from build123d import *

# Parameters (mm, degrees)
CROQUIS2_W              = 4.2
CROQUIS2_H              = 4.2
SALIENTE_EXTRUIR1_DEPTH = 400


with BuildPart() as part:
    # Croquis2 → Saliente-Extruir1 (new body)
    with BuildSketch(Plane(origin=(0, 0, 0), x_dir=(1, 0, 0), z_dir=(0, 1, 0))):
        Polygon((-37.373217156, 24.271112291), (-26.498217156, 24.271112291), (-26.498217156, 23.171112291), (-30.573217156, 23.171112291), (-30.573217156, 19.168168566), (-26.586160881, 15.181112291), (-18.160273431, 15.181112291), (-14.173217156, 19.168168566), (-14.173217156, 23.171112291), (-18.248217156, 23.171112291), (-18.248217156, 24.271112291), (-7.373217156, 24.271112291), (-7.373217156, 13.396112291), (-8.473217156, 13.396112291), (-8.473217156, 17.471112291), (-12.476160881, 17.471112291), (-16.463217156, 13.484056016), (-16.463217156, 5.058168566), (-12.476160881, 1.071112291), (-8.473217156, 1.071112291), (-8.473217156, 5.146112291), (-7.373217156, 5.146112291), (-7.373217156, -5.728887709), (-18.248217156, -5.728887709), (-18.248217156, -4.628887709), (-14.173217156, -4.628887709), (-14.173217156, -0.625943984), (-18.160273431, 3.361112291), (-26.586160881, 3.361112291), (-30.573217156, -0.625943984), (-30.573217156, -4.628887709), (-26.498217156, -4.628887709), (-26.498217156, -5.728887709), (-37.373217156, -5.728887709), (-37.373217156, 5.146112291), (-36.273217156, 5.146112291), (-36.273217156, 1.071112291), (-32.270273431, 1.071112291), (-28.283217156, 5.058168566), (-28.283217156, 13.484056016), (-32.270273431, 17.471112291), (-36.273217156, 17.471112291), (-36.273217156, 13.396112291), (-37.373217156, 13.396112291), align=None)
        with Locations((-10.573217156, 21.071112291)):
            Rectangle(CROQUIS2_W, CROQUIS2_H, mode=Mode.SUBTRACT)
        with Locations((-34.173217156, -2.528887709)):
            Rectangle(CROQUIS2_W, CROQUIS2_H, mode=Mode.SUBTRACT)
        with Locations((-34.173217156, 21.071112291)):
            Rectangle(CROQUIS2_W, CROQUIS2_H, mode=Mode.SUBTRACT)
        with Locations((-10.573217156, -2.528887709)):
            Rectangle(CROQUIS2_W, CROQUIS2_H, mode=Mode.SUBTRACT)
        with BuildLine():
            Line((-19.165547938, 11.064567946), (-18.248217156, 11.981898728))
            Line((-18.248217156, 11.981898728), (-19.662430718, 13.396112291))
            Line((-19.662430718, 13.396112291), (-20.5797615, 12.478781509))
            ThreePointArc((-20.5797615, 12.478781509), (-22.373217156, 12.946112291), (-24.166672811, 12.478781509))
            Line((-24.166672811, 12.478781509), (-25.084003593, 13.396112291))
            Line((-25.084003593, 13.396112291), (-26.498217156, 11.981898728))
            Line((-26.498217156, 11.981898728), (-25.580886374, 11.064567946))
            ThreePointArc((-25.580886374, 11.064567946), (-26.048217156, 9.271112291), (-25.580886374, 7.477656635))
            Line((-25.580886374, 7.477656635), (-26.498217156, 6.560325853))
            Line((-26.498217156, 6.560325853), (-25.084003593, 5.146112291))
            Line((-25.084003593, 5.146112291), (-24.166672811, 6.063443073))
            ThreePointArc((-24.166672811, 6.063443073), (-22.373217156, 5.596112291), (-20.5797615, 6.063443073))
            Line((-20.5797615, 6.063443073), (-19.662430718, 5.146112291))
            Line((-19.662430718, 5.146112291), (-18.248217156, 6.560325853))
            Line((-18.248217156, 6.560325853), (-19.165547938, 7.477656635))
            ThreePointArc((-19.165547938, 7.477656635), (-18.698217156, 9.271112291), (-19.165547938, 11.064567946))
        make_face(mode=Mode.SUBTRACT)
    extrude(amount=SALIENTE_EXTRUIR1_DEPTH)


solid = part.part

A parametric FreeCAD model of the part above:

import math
import FreeCAD as App
import Part
import Sketcher
Q = App.Units.Quantity

doc = App.newDocument("Part")
body = doc.addObject("PartDesign::Body", "Body")

# Sketch on XZ plane
sketch1 = body.newObject("Sketcher::SketchObject", "Sketch")
sketch1.AttachmentSupport = (doc.getObject("XZ_Plane"), [""])
sketch1.MapMode = "FlatFace"
sketch1.addGeometry([
    Part.LineSegment(App.Vector(-26.5, -24.3, 0), App.Vector(-37.4, -24.3, 0)),  # 0
    Part.LineSegment(App.Vector(-37.4, -24.3, 0), App.Vector(-37.4, -13.4, 0)),  # 1
    Part.LineSegment(App.Vector(-37.4, -13.4, 0), App.Vector(-36.3, -13.4, 0)),  # 2
    Part.LineSegment(App.Vector(-36.3, -13.4, 0), App.Vector(-36.3, -17.5, 0)),  # 3
    Part.LineSegment(App.Vector(-36.3, -17.5, 0), App.Vector(-32.3, -17.5, 0)),  # 4
    Part.LineSegment(App.Vector(-32.3, -17.5, 0), App.Vector(-28.3, -13.5, 0)),  # 5
    Part.LineSegment(App.Vector(-28.3, -13.5, 0), App.Vector(-28.3, -5.1, 0)),  # 6
    Part.LineSegment(App.Vector(-28.3, -5.1, 0), App.Vector(-32.3, -1.1, 0)),  # 7
    Part.LineSegment(App.Vector(-32.3, -1.1, 0), App.Vector(-36.3, -1.1, 0)),  # 8
    Part.LineSegment(App.Vector(-36.3, -1.1, 0), App.Vector(-36.3, -5.1, 0)),  # 9
    Part.LineSegment(App.Vector(-36.3, -5.1, 0), App.Vector(-37.4, -5.1, 0)),  # 10
    Part.LineSegment(App.Vector(-37.4, -5.1, 0), App.Vector(-37.4, 5.7, 0)),  # 11
    Part.LineSegment(App.Vector(-37.4, 5.7, 0), App.Vector(-26.5, 5.7, 0)),  # 12
    Part.LineSegment(App.Vector(-26.5, 5.7, 0), App.Vector(-26.5, 4.6, 0)),  # 13
    Part.LineSegment(App.Vector(-26.5, 4.6, 0), App.Vector(-30.6, 4.6, 0)),  # 14
    Part.LineSegment(App.Vector(-30.6, 4.6, 0), App.Vector(-30.6, 0.6, 0)),  # 15
    Part.LineSegment(App.Vector(-30.6, 0.6, 0), App.Vector(-26.6, -3.4, 0)),  # 16
    Part.LineSegment(App.Vector(-26.6, -3.4, 0), App.Vector(-18.2, -3.4, 0)),  # 17
    Part.LineSegment(App.Vector(-18.2, -3.4, 0), App.Vector(-14.2, 0.6, 0)),  # 18
    Part.LineSegment(App.Vector(-14.2, 0.6, 0), App.Vector(-14.2, 4.6, 0)),  # 19
    Part.LineSegment(App.Vector(-14.2, 4.6, 0), App.Vector(-18.2, 4.6, 0)),  # 20
    Part.LineSegment(App.Vector(-18.2, 4.6, 0), App.Vector(-18.2, 5.7, 0)),  # 21
    Part.LineSegment(App.Vector(-18.2, 5.7, 0), App.Vector(-7.4, 5.7, 0)),  # 22
    Part.LineSegment(App.Vector(-7.4, 5.7, 0), App.Vector(-7.4, -5.1, 0)),  # 23
    Part.LineSegment(App.Vector(-7.4, -5.1, 0), App.Vector(-8.5, -5.1, 0)),  # 24
    Part.LineSegment(App.Vector(-8.5, -5.1, 0), App.Vector(-8.5, -1.1, 0)),  # 25
    Part.LineSegment(App.Vector(-8.5, -1.1, 0), App.Vector(-12.5, -1.1, 0)),  # 26
    Part.LineSegment(App.Vector(-12.5, -1.1, 0), App.Vector(-16.5, -5.1, 0)),  # 27
    Part.LineSegment(App.Vector(-16.5, -5.1, 0), App.Vector(-16.5, -13.5, 0)),  # 28
    Part.LineSegment(App.Vector(-16.5, -13.5, 0), App.Vector(-12.5, -17.5, 0)),  # 29
    Part.LineSegment(App.Vector(-12.5, -17.5, 0), App.Vector(-8.5, -17.5, 0)),  # 30
    Part.LineSegment(App.Vector(-8.5, -17.5, 0), App.Vector(-8.5, -13.4, 0)),  # 31
    Part.LineSegment(App.Vector(-8.5, -13.4, 0), App.Vector(-7.4, -13.4, 0)),  # 32
    Part.LineSegment(App.Vector(-7.4, -13.4, 0), App.Vector(-7.4, -24.3, 0)),  # 33
    Part.LineSegment(App.Vector(-7.4, -24.3, 0), App.Vector(-18.2, -24.3, 0)),  # 34
    Part.LineSegment(App.Vector(-18.2, -24.3, 0), App.Vector(-18.2, -23.2, 0)),  # 35
    Part.LineSegment(App.Vector(-18.2, -23.2, 0), App.Vector(-14.2, -23.2, 0)),  # 36
    Part.LineSegment(App.Vector(-14.2, -23.2, 0), App.Vector(-14.2, -19.2, 0)),  # 37
    Part.LineSegment(App.Vector(-14.2, -19.2, 0), App.Vector(-18.2, -15.2, 0)),  # 38
    Part.LineSegment(App.Vector(-18.2, -15.2, 0), App.Vector(-26.6, -15.2, 0)),  # 39
    Part.LineSegment(App.Vector(-26.6, -15.2, 0), App.Vector(-30.6, -19.2, 0)),  # 40
    Part.LineSegment(App.Vector(-30.6, -19.2, 0), App.Vector(-30.6, -23.2, 0)),  # 41
    Part.LineSegment(App.Vector(-30.6, -23.2, 0), App.Vector(-26.5, -23.2, 0)),  # 42
    Part.LineSegment(App.Vector(-26.5, -23.2, 0), App.Vector(-26.5, -24.3, 0)),  # 43
    Part.LineSegment(App.Vector(-12.7, 4.6, 0), App.Vector(-12.7, 0.4, 0)),  # 44
    Part.LineSegment(App.Vector(-12.7, 0.4, 0), App.Vector(-8.5, 0.4, 0)),  # 45
    Part.LineSegment(App.Vector(-8.5, 0.4, 0), App.Vector(-8.5, 4.6, 0)),  # 46
    Part.LineSegment(App.Vector(-8.5, 4.6, 0), App.Vector(-12.7, 4.6, 0)),  # 47
    Part.LineSegment(App.Vector(-36.3, 4.6, 0), App.Vector(-36.3, 0.4, 0)),  # 48
    Part.LineSegment(App.Vector(-36.3, 0.4, 0), App.Vector(-32.1, 0.4, 0)),  # 49
    Part.LineSegment(App.Vector(-32.1, 0.4, 0), App.Vector(-32.1, 4.6, 0)),  # 50
    Part.LineSegment(App.Vector(-32.1, 4.6, 0), App.Vector(-36.3, 4.6, 0)),  # 51
    Part.ArcOfCircle(Part.Circle(App.Vector(-22.4, -9.3, 0), App.Vector(0, 0, 1), 3.7), math.radians(-29), math.radians(29)),  # 52
    Part.LineSegment(App.Vector(-19.2, -7.5, 0), App.Vector(-18.2, -6.6, 0)),  # 53
    Part.LineSegment(App.Vector(-18.2, -6.6, 0), App.Vector(-19.7, -5.1, 0)),  # 54
    Part.LineSegment(App.Vector(-19.7, -5.1, 0), App.Vector(-20.6, -6.1, 0)),  # 55
    Part.ArcOfCircle(Part.Circle(App.Vector(-22.4, -9.3, 0), App.Vector(0, 0, 1), 3.7), math.radians(61), math.radians(119)),  # 56
    Part.LineSegment(App.Vector(-24.2, -6.1, 0), App.Vector(-25.1, -5.1, 0)),  # 57
    Part.LineSegment(App.Vector(-25.1, -5.1, 0), App.Vector(-26.5, -6.6, 0)),  # 58
    Part.LineSegment(App.Vector(-26.5, -6.6, 0), App.Vector(-25.6, -7.5, 0)),  # 59
    Part.ArcOfCircle(Part.Circle(App.Vector(-22.4, -9.3, 0), App.Vector(0, 0, 1), 3.7), math.radians(151), math.radians(209)),  # 60
    Part.LineSegment(App.Vector(-25.6, -11.1, 0), App.Vector(-26.5, -12, 0)),  # 61
    Part.LineSegment(App.Vector(-26.5, -12, 0), App.Vector(-25.1, -13.4, 0)),  # 62
    Part.LineSegment(App.Vector(-25.1, -13.4, 0), App.Vector(-24.2, -12.5, 0)),  # 63
    Part.ArcOfCircle(Part.Circle(App.Vector(-22.4, -9.3, 0), App.Vector(0, 0, 1), 3.7), math.radians(-119), math.radians(-61)),  # 64
    Part.LineSegment(App.Vector(-20.6, -12.5, 0), App.Vector(-19.7, -13.4, 0)),  # 65
    Part.LineSegment(App.Vector(-19.7, -13.4, 0), App.Vector(-18.2, -12, 0)),  # 66
    Part.LineSegment(App.Vector(-18.2, -12, 0), App.Vector(-19.2, -11.1, 0)),  # 67
    Part.LineSegment(App.Vector(-12.7, -19, 0), App.Vector(-12.7, -23.2, 0)),  # 68
    Part.LineSegment(App.Vector(-12.7, -23.2, 0), App.Vector(-8.5, -23.2, 0)),  # 69
    Part.LineSegment(App.Vector(-8.5, -23.2, 0), App.Vector(-8.5, -19, 0)),  # 70
    Part.LineSegment(App.Vector(-8.5, -19, 0), App.Vector(-12.7, -19, 0)),  # 71
    Part.LineSegment(App.Vector(-36.3, -19, 0), App.Vector(-36.3, -23.2, 0)),  # 72
    Part.LineSegment(App.Vector(-36.3, -23.2, 0), App.Vector(-32.1, -23.2, 0)),  # 73
    Part.LineSegment(App.Vector(-32.1, -23.2, 0), App.Vector(-32.1, -19, 0)),  # 74
    Part.LineSegment(App.Vector(-32.1, -19, 0), App.Vector(-36.3, -19, 0)),  # 75
], False)
sketch1.addConstraint([
    Sketcher.Constraint("Coincident", 0, 2, 1, 1),
    Sketcher.Constraint("Coincident", 1, 2, 2, 1),
    Sketcher.Constraint("Coincident", 2, 2, 3, 1),
    Sketcher.Constraint("Coincident", 3, 2, 4, 1),
    Sketcher.Constraint("Coincident", 4, 2, 5, 1),
    Sketcher.Constraint("Coincident", 5, 2, 6, 1),
    Sketcher.Constraint("Coincident", 6, 2, 7, 1),
    Sketcher.Constraint("Coincident", 7, 2, 8, 1),
    Sketcher.Constraint("Coincident", 8, 2, 9, 1),
    Sketcher.Constraint("Coincident", 9, 2, 10, 1),
    Sketcher.Constraint("Coincident", 10, 2, 11, 1),
    Sketcher.Constraint("Coincident", 11, 2, 12, 1),
    Sketcher.Constraint("Coincident", 12, 2, 13, 1),
    Sketcher.Constraint("Coincident", 13, 2, 14, 1),
    Sketcher.Constraint("Coincident", 14, 2, 15, 1),
    Sketcher.Constraint("Coincident", 15, 2, 16, 1),
    Sketcher.Constraint("Coincident", 16, 2, 17, 1),
    Sketcher.Constraint("Coincident", 17, 2, 18, 1),
    Sketcher.Constraint("Coincident", 18, 2, 19, 1),
    Sketcher.Constraint("Coincident", 19, 2, 20, 1),
    Sketcher.Constraint("Coincident", 20, 2, 21, 1),
    Sketcher.Constraint("Coincident", 21, 2, 22, 1),
    Sketcher.Constraint("Coincident", 22, 2, 23, 1),
    Sketcher.Constraint("Coincident", 23, 2, 24, 1),
    Sketcher.Constraint("Coincident", 24, 2, 25, 1),
    Sketcher.Constraint("Coincident", 25, 2, 26, 1),
    Sketcher.Constraint("Coincident", 26, 2, 27, 1),
    Sketcher.Constraint("Coincident", 27, 2, 28, 1),
    Sketcher.Constraint("Coincident", 28, 2, 29, 1),
    Sketcher.Constraint("Coincident", 29, 2, 30, 1),
    Sketcher.Constraint("Coincident", 30, 2, 31, 1),
    Sketcher.Constraint("Coincident", 31, 2, 32, 1),
    Sketcher.Constraint("Coincident", 32, 2, 33, 1),
    Sketcher.Constraint("Coincident", 33, 2, 34, 1),
    Sketcher.Constraint("Coincident", 34, 2, 35, 1),
    Sketcher.Constraint("Coincident", 35, 2, 36, 1),
    Sketcher.Constraint("Coincident", 36, 2, 37, 1),
    Sketcher.Constraint("Coincident", 37, 2, 38, 1),
    Sketcher.Constraint("Coincident", 38, 2, 39, 1),
    Sketcher.Constraint("Coincident", 39, 2, 40, 1),
    Sketcher.Constraint("Coincident", 40, 2, 41, 1),
    Sketcher.Constraint("Coincident", 41, 2, 42, 1),
    Sketcher.Constraint("Coincident", 42, 2, 43, 1),
    Sketcher.Constraint("Coincident", 43, 2, 0, 1),
    Sketcher.Constraint("Coincident", 44, 2, 45, 1),
    Sketcher.Constraint("Coincident", 45, 2, 46, 1),
    Sketcher.Constraint("Coincident", 46, 2, 47, 1),
    Sketcher.Constraint("Coincident", 47, 2, 44, 1),
    Sketcher.Constraint("Coincident", 48, 2, 49, 1),
    Sketcher.Constraint("Coincident", 49, 2, 50, 1),
    Sketcher.Constraint("Coincident", 50, 2, 51, 1),
    Sketcher.Constraint("Coincident", 51, 2, 48, 1),
    Sketcher.Constraint("Coincident", 52, 2, 53, 1),
    Sketcher.Constraint("Coincident", 53, 2, 54, 1),
    Sketcher.Constraint("Coincident", 54, 2, 55, 1),
    Sketcher.Constraint("Coincident", 55, 2, 56, 1),
    Sketcher.Constraint("Coincident", 56, 2, 57, 1),
    Sketcher.Constraint("Coincident", 57, 2, 58, 1),
    Sketcher.Constraint("Coincident", 58, 2, 59, 1),
    Sketcher.Constraint("Coincident", 59, 2, 60, 1),
    Sketcher.Constraint("Coincident", 60, 2, 61, 1),
    Sketcher.Constraint("Coincident", 61, 2, 62, 1),
    Sketcher.Constraint("Coincident", 62, 2, 63, 1),
    Sketcher.Constraint("Coincident", 63, 2, 64, 1),
    Sketcher.Constraint("Coincident", 64, 2, 65, 1),
    Sketcher.Constraint("Coincident", 65, 2, 66, 1),
    Sketcher.Constraint("Coincident", 66, 2, 67, 1),
    Sketcher.Constraint("Coincident", 67, 2, 52, 1),
    Sketcher.Constraint("Coincident", 68, 2, 69, 1),
    Sketcher.Constraint("Coincident", 69, 2, 70, 1),
    Sketcher.Constraint("Coincident", 70, 2, 71, 1),
    Sketcher.Constraint("Coincident", 71, 2, 68, 1),
    Sketcher.Constraint("Coincident", 72, 2, 73, 1),
    Sketcher.Constraint("Coincident", 73, 2, 74, 1),
    Sketcher.Constraint("Coincident", 74, 2, 75, 1),
    Sketcher.Constraint("Coincident", 75, 2, 72, 1),
    Sketcher.Constraint("Horizontal", 0),
    Sketcher.Constraint("Vertical", 1),
    Sketcher.Constraint("Horizontal", 2),
    Sketcher.Constraint("Vertical", 3),
    Sketcher.Constraint("Horizontal", 4),
    Sketcher.Constraint("Vertical", 6),
    Sketcher.Constraint("Horizontal", 8),
    Sketcher.Constraint("Vertical", 9),
    Sketcher.Constraint("Horizontal", 10),
    Sketcher.Constraint("Vertical", 11),
    Sketcher.Constraint("Horizontal", 12),
    Sketcher.Constraint("Vertical", 13),
    Sketcher.Constraint("Horizontal", 14),
    Sketcher.Constraint("Vertical", 15),
    Sketcher.Constraint("Horizontal", 17),
    Sketcher.Constraint("Vertical", 19),
    Sketcher.Constraint("Horizontal", 20),
    Sketcher.Constraint("Vertical", 21),
    Sketcher.Constraint("Horizontal", 22),
    Sketcher.Constraint("Vertical", 23),
    Sketcher.Constraint("Horizontal", 24),
    Sketcher.Constraint("Vertical", 25),
    Sketcher.Constraint("Horizontal", 26),
    Sketcher.Constraint("Vertical", 28),
    Sketcher.Constraint("Horizontal", 30),
    Sketcher.Constraint("Vertical", 31),
    Sketcher.Constraint("Horizontal", 32),
    Sketcher.Constraint("Vertical", 33),
    Sketcher.Constraint("Horizontal", 34),
    Sketcher.Constraint("Vertical", 35),
    Sketcher.Constraint("Horizontal", 36),
    Sketcher.Constraint("Vertical", 37),
    Sketcher.Constraint("Horizontal", 39),
    Sketcher.Constraint("Vertical", 41),
    Sketcher.Constraint("Horizontal", 42),
    Sketcher.Constraint("Vertical", 43),
    Sketcher.Constraint("Vertical", 44),
    Sketcher.Constraint("Horizontal", 45),
    Sketcher.Constraint("Vertical", 46),
    Sketcher.Constraint("Horizontal", 47),
    Sketcher.Constraint("Vertical", 48),
    Sketcher.Constraint("Horizontal", 49),
    Sketcher.Constraint("Vertical", 50),
    Sketcher.Constraint("Horizontal", 51),
    Sketcher.Constraint("Vertical", 68),
    Sketcher.Constraint("Horizontal", 69),
    Sketcher.Constraint("Vertical", 70),
    Sketcher.Constraint("Horizontal", 71),
    Sketcher.Constraint("Vertical", 72),
    Sketcher.Constraint("Horizontal", 73),
    Sketcher.Constraint("Vertical", 74),
    Sketcher.Constraint("Horizontal", 75),
    Sketcher.Constraint("Coincident", 56, 3, 52, 3),
    Sketcher.Constraint("Coincident", 60, 3, 52, 3),
    Sketcher.Constraint("Coincident", 64, 3, 52, 3),
    Sketcher.Constraint("Equal", 52, 56),
    Sketcher.Constraint("Equal", 56, 60),
    Sketcher.Constraint("Equal", 60, 64),
    Sketcher.Constraint("Perpendicular", 5, 7),
    Sketcher.Constraint("Parallel", 7, 16),
    Sketcher.Constraint("Perpendicular", 16, 18),
    Sketcher.Constraint("Parallel", 18, 27),
    Sketcher.Constraint("Perpendicular", 27, 29),
    Sketcher.Constraint("Parallel", 29, 38),
    Sketcher.Constraint("Perpendicular", 38, 40),
    Sketcher.Constraint("Parallel", 40, 53),
    Sketcher.Constraint("Perpendicular", 53, 54),
    Sketcher.Constraint("Perpendicular", 54, 55),
    Sketcher.Constraint("Perpendicular", 55, 57),
    Sketcher.Constraint("Perpendicular", 57, 58),
    Sketcher.Constraint("Perpendicular", 58, 59),
    Sketcher.Constraint("Perpendicular", 59, 61),
    Sketcher.Constraint("Perpendicular", 61, 62),
    Sketcher.Constraint("Perpendicular", 62, 63),
    Sketcher.Constraint("Perpendicular", 63, 65),
    Sketcher.Constraint("Perpendicular", 65, 66),
    Sketcher.Constraint("Perpendicular", 66, 67),
    Sketcher.Constraint("Horizontal", 15, 2, 18, 2),
    Sketcher.Constraint("Horizontal", 14, 2, 19, 2),
    Sketcher.Constraint("Horizontal", 12, 2, 21, 2),
    Sketcher.Constraint("Horizontal", 10, 2, 23, 2),
    Sketcher.Constraint("Horizontal", 8, 2, 25, 2),
    Sketcher.Constraint("Horizontal", 6, 2, 27, 2),
    Sketcher.Constraint("Horizontal", 5, 2, 28, 2),
    Sketcher.Constraint("Horizontal", 4, 2, 29, 2),
    Sketcher.Constraint("Horizontal", 2, 2, 31, 2),
    Sketcher.Constraint("Horizontal", 0, 2, 33, 2),
    Sketcher.Constraint("Horizontal", 37, 2, 40, 2),
    Sketcher.Constraint("Horizontal", 36, 2, 41, 2),
    Sketcher.Constraint("Horizontal", 20, 2, 46, 2),
    Sketcher.Constraint("Horizontal", 45, 2, 48, 2),
    Sketcher.Constraint("Horizontal", 47, 2, 50, 2),
    Sketcher.Constraint("Horizontal", 24, 2, 54, 2),
    Sketcher.Constraint("Horizontal", 55, 2, 56, 2),
    Sketcher.Constraint("Horizontal", 54, 2, 57, 2),
    Sketcher.Constraint("Horizontal", 53, 2, 58, 2),
    Sketcher.Constraint("Horizontal", 52, 2, 59, 2),
    Sketcher.Constraint("Horizontal", 32, 2, 62, 2),
    Sketcher.Constraint("Horizontal", 63, 2, 64, 2),
    Sketcher.Constraint("Horizontal", 62, 2, 65, 2),
    Sketcher.Constraint("Horizontal", 61, 2, 66, 2),
    Sketcher.Constraint("Horizontal", 42, 2, 68, 2),
    Sketcher.Constraint("Horizontal", 69, 2, 72, 2),
    Sketcher.Constraint("Horizontal", 71, 2, 74, 2),
    Sketcher.Constraint("Vertical", 4, 2, 7, 2),
    Sketcher.Constraint("Vertical", 3, 2, 8, 2),
    Sketcher.Constraint("Vertical", 1, 2, 10, 2),
    Sketcher.Constraint("Vertical", 25, 2, 30, 2),
    Sketcher.Constraint("Vertical", 23, 2, 32, 2),
    Sketcher.Constraint("Vertical", 21, 2, 34, 2),
    Sketcher.Constraint("Vertical", 19, 2, 36, 2),
    Sketcher.Constraint("Vertical", 17, 2, 38, 2),
    Sketcher.Constraint("Vertical", 16, 2, 39, 2),
    Sketcher.Constraint("Vertical", 13, 2, 42, 2),
    Sketcher.Constraint("Vertical", 31, 2, 45, 2),
    Sketcher.Constraint("Vertical", 9, 2, 48, 2),
    Sketcher.Constraint("Vertical", 35, 2, 53, 2),
    Sketcher.Constraint("Vertical", 43, 2, 58, 2),
    Sketcher.Constraint("Vertical", 59, 2, 60, 2),
    Sketcher.Constraint("Vertical", 58, 2, 61, 2),
    Sketcher.Constraint("Vertical", 57, 2, 62, 2),
    Sketcher.Constraint("Vertical", 47, 2, 68, 2),
    Sketcher.Constraint("Vertical", 46, 2, 69, 2),
    Sketcher.Constraint("Vertical", 51, 2, 72, 2),
    Sketcher.Constraint("Vertical", 50, 2, 73, 2),
    Sketcher.Constraint("Equal", 14, 20),
    Sketcher.Constraint("Equal", 12, 22),
    Sketcher.Constraint("Equal", 10, 24),
    Sketcher.Constraint("Equal", 8, 26),
    Sketcher.Constraint("Equal", 47, 49),
    Sketcher.Constraint("Equal", 34, 1),
    Sketcher.Constraint("Equal", 42, 3),
    Sketcher.Constraint("Equal", 39, 6),
    Sketcher.Constraint("Equal", 3, 9),
    Sketcher.Constraint("Equal", 1, 11),
    Sketcher.Constraint("Equal", 32, 13),
    Sketcher.Constraint("Equal", 30, 15),
    Sketcher.Constraint("Equal", 21, 35),
    Sketcher.Constraint("Equal", 19, 37),
    Sketcher.Constraint("Equal", 75, 44),
    Sketcher.Constraint("Equal", 50, 68),
    Sketcher.Constraint("Equal", 7, 16),
    Sketcher.Constraint("Distance", 54, Q("2 mm")),
    Sketcher.Constraint("DistanceX", 2, 1, 2, 2, Q("1.1 mm")),
    Sketcher.Constraint("DistanceX", 45, 1, 45, 2, Q("4.2 mm")),
    Sketcher.Constraint("Radius", 52, Q("3.675 mm")),
    Sketcher.Constraint("DistanceX", 0, 2, 0, 1, Q("10.875 mm")),
    Sketcher.Constraint("DistanceX", 14, 2, 14, 1, Q("4.075 mm")),
    Sketcher.Constraint("Distance", 53, Q("1.297302 mm")),
    Sketcher.Constraint("DistanceY", 61, 2, -1, 1, Q("11.981899 mm")),
    Sketcher.Constraint("Distance", 5, Q("5.638549 mm")),
    Sketcher.Constraint("DistanceX", 4, 1, 4, 2, Q("4.002944 mm")),
    Sketcher.Constraint("DistanceX", 16, 2, -1, 1, Q("26.586161 mm")),
])
pad1 = body.newObject("PartDesign::Pad", "Pad")
pad1.Profile = sketch1
pad1.Length = 400
pad1.Reversed = True

doc.recompute()
